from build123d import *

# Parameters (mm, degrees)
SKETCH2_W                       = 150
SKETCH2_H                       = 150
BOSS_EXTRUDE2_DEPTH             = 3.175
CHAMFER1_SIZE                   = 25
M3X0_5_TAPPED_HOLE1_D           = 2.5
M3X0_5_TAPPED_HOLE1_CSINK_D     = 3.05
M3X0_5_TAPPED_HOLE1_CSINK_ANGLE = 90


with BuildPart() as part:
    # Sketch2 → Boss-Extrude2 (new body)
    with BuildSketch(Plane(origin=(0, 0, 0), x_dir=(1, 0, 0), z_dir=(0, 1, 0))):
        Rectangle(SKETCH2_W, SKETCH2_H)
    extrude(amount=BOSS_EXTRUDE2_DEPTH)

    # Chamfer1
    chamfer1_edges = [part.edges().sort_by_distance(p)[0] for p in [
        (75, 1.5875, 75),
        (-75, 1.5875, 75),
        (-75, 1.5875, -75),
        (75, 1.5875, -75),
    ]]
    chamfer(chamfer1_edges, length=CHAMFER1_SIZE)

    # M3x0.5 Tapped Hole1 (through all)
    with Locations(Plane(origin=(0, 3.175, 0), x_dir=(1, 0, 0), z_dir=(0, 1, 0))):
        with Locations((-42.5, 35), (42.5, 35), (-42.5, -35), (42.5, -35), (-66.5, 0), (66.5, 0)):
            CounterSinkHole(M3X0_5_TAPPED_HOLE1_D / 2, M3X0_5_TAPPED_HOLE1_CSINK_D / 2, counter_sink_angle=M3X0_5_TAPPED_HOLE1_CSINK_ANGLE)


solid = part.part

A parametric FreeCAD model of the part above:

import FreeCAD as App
import Part
import Sketcher
from FreeCAD import Vector


def edges_at(feature, points):
    """Names of the edges that pass closest to the given points."""
    edges = feature.Shape.Edges
    near = lambda p: min(range(len(edges)), key=lambda i: edges[i].distToShape(Part.Vertex(*p))[0])
    return sorted({f"Edge{near(p) + 1}" for p in points})

doc = App.newDocument("Part")
body = doc.addObject("PartDesign::Body", "Body")

# Sketch on XZ plane
sketch1 = doc.addObject("Sketcher::SketchObject", "Sketch")
body.addObject(sketch1)
sketch1.AttachmentSupport = (doc.XZ_Plane, [""])
sketch1.MapMode = "FlatFace"
sketch1.addGeometry([
    Part.LineSegment(Vector(-75, -75, 0), Vector(-75, 75, 0)),
    Part.LineSegment(Vector(-75, 75, 0), Vector(75, 75, 0)),
    Part.LineSegment(Vector(75, 75, 0), Vector(75, -75, 0)),
    Part.LineSegment(Vector(75, -75, 0), Vector(-75, -75, 0)),
], False)
sketch1.addConstraint([
    Sketcher.Constraint("Coincident", 0, 2, 1, 1),
    Sketcher.Constraint("Coincident", 1, 2, 2, 1),
    Sketcher.Constraint("Coincident", 2, 2, 3, 1),
    Sketcher.Constraint("Coincident", 3, 2, 0, 1),
    Sketcher.Constraint("Vertical", 0),
    Sketcher.Constraint("Horizontal", 1),
    Sketcher.Constraint("Vertical", 2),
    Sketcher.Constraint("Horizontal", 3),
    Sketcher.Constraint("Symmetric", 0, 2, 2, 2, -1, 1),
    Sketcher.Constraint("Equal", 3, 0),
    Sketcher.Constraint("DistanceX", 1, 1, 1, 2, 150.0),
])
pad1 = doc.addObject("PartDesign::Pad", "Pad")
body.addObject(pad1)
pad1.Profile = sketch1
pad1.Length = 3.175
pad1.Reversed = True
doc.recompute()

chamfer = doc.addObject("PartDesign::Chamfer", "Chamfer")
body.addObject(chamfer)
chamfer.Base = (pad1, edges_at(pad1, [
    (75, 1.587, 75),
    (-75, 1.587, 75),
    (-75, 1.587, -75),
    (75, 1.587, -75),
]))
chamfer.Size = 25

# Sketch on XZ plane
sketch2 = doc.addObject("Sketcher::SketchObject", "Sketch001")
body.addObject(sketch2)
sketch2.AttachmentSupport = (doc.XZ_Plane, [""])
sketch2.MapMode = "FlatFace"
sketch2.AttachmentOffset = App.Placement(Vector(0, 0, -3.175), App.Rotation())
sketch2.addGeometry([
    Part.Circle(Vector(-42.5, -35, 0), Vector(0, 0, 1), 1.2),  # 0
    Part.Circle(Vector(42.5, -35, 0), Vector(0, 0, 1), 1.2),  # 1
    Part.Circle(Vector(-42.5, 35, 0), Vector(0, 0, 1), 1.2),  # 2
    Part.Circle(Vector(42.5, 35, 0), Vector(0, 0, 1), 1.2),  # 3
    Part.Circle(Vector(-66.5, 0, 0), Vector(0, 0, 1), 1.2),  # 4
    Part.Circle(Vector(66.5, 0, 0), Vector(0, 0, 1), 1.2),  # 5
], False)
sketch2.addConstraint([
    Sketcher.Constraint("Equal", 0, 1),
    Sketcher.Constraint("Equal", 1, 2),
    Sketcher.Constraint("Equal", 2, 3),
    Sketcher.Constraint("Equal", 3, 4),
    Sketcher.Constraint("Equal", 4, 5),
    Sketcher.Constraint("Symmetric", 1, 3, 2, 3, -1, 1),
    Sketcher.Constraint("Symmetric", 0, 3, 3, 3, -1, 1),
    Sketcher.Constraint("Symmetric", 4, 3, 5, 3, -1, 1),
    Sketcher.Constraint("Symmetric", 0, 3, 1, 3, -2),
    Sketcher.Constraint("PointOnObject", 4, 3, -1),
    Sketcher.Constraint("Diameter", 0, 2.5),
    Sketcher.Constraint("DistanceY", 0, 3, -1, 1, 35.0),
    Sketcher.Constraint("DistanceX", 0, 3, 1, 3, 85.0),
    Sketcher.Constraint("DistanceX", 4, 3, 0, 3, 24.0),
])
doc.recompute()
hole = doc.addObject("PartDesign::Hole", "Hole")
body.addObject(hole)
hole.Profile = sketch2
hole.ThreadType = "None"
hole.Diameter = 2.5
hole.DepthType = "ThroughAll"
hole.HoleCutType = "Countersink"
hole.HoleCutDiameter = 3.05
hole.HoleCutCountersinkAngle = 90
hole.Reversed = True

doc.recompute()
